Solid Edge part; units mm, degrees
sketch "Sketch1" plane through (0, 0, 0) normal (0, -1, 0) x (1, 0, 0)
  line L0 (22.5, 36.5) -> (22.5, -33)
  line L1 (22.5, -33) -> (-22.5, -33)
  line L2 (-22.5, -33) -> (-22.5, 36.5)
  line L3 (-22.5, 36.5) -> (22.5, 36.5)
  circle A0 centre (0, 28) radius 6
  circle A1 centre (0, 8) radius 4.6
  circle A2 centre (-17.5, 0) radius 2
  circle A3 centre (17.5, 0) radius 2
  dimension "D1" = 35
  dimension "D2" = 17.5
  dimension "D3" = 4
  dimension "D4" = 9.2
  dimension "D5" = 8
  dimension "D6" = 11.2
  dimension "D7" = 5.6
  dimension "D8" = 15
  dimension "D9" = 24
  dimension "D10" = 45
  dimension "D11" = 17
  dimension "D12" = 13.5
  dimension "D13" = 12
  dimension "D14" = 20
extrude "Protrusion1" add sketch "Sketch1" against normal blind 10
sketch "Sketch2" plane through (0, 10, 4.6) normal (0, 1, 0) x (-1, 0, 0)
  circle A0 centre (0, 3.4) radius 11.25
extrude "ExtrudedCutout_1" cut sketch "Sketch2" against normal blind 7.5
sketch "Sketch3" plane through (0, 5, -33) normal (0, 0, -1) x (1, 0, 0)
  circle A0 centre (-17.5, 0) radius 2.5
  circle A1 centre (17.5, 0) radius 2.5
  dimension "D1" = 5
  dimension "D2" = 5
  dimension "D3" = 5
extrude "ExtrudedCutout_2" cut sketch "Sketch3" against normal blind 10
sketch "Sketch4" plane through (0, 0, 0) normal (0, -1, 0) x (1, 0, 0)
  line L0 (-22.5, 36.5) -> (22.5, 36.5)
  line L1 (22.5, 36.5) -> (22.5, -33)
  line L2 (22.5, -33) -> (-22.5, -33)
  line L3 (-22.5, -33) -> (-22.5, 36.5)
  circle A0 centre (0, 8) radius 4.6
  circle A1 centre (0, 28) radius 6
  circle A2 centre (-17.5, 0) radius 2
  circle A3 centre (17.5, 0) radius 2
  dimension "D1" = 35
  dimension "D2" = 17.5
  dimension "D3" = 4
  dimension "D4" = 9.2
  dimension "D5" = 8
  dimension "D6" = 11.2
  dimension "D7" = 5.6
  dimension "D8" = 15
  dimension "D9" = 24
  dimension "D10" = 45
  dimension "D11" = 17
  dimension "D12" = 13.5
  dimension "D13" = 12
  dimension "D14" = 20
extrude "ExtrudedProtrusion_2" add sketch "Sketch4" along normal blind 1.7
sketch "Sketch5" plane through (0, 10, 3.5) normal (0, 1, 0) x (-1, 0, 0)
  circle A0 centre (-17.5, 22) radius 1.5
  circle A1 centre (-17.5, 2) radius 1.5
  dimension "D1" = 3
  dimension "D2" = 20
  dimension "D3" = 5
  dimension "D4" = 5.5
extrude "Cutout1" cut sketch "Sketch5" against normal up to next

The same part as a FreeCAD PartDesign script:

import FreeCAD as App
import Part
import Sketcher
Q = App.Units.Quantity


def add_polygon(sketch, points):
    """Adds a closed chain of lines whose ends are joined by coincident constraints."""
    first, n = sketch.GeometryCount, len(points)
    for a, b in zip(points, points[1:] + points[:1]):
        sketch.addGeometry(Part.LineSegment(App.Vector(*a, 0), App.Vector(*b, 0)), False)
    for i in range(n):
        sketch.addConstraint(Sketcher.Constraint("Coincident", first + i, 2, first + (i + 1) % n, 1))

doc = App.newDocument("Part")
body = doc.addObject("PartDesign::Body", "Body")

# Sketch on XZ plane
sketch1 = doc.addObject("Sketcher::SketchObject", "Sketch")
body.addObject(sketch1)
sketch1.AttachmentSupport = (doc.XZ_Plane, [""])
sketch1.MapMode = "FlatFace"
add_polygon(sketch1, [(22.5, -33), (22.5, 36.5), (-22.5, 36.5), (-22.5, -33)])  # lines 0-3
sketch1.addGeometry(Part.Circle(App.Vector(-17.5, 0, 0), App.Vector(0, 0, 1), 2), False)  # 4
sketch1.addGeometry(Part.Circle(App.Vector(17.5, 0, 0), App.Vector(0, 0, 1), 2), False)  # 5
sketch1.addGeometry(Part.Circle(App.Vector(0, 8, 0), App.Vector(0, 0, 1), 4.6), False)  # 6
sketch1.addGeometry(Part.Circle(App.Vector(0, 28, 0), App.Vector(0, 0, 1), 6), False)  # 7
sketch1.addConstraint(Sketcher.Constraint("Vertical", 0))
sketch1.addConstraint(Sketcher.Constraint("Horizontal", 1))
sketch1.addConstraint(Sketcher.Constraint("Vertical", 2))
sketch1.addConstraint(Sketcher.Constraint("Horizontal", 3))
sketch1.addConstraint(Sketcher.Constraint("Equal", 4, 5))
sketch1.addConstraint(Sketcher.Constraint("Symmetric", 4, 3, 5, 3, -1, 1))
sketch1.addConstraint(Sketcher.Constraint("PointOnObject", 4, 3, -1))
sketch1.addConstraint(Sketcher.Constraint("PointOnObject", 6, 3, -2))
sketch1.addConstraint(Sketcher.Constraint("PointOnObject", 7, 3, -2))
sketch1.addConstraint(Sketcher.Constraint("Diameter", 4, Q("4 mm")))
sketch1.addConstraint(Sketcher.Constraint("Diameter", 7, Q("12 mm")))
sketch1.addConstraint(Sketcher.Constraint("Diameter", 6, Q("9.2 mm")))
sketch1.addConstraint(Sketcher.Constraint("DistanceX", 1, 2, 1, 1, Q("45 mm")))
sketch1.addConstraint(Sketcher.Constraint("DistanceY", 0, 1, 0, 2, Q("69.5 mm")))
sketch1.addConstraint(Sketcher.Constraint("DistanceY", -1, 1, 6, 3, Q("8 mm")))
sketch1.addConstraint(Sketcher.Constraint("DistanceY", -1, 1, 7, 3, Q("28 mm")))
sketch1.addConstraint(Sketcher.Constraint("DistanceY", 2, 2, -1, 1, Q("33 mm")))
sketch1.addConstraint(Sketcher.Constraint("DistanceX", 4, 3, 5, 3, Q("35 mm")))
sketch1.addConstraint(Sketcher.Constraint("DistanceX", 5, 3, 0, 2, Q("5 mm")))
pad1 = doc.addObject("PartDesign::Pad", "Pad")
body.addObject(pad1)
pad1.Profile = sketch1
pad1.Length = 10
pad1.Reversed = True

# Sketch on XZ plane
sketch2 = doc.addObject("Sketcher::SketchObject", "Sketch001")
body.addObject(sketch2)
sketch2.AttachmentSupport = (doc.XZ_Plane, [""])
sketch2.MapMode = "FlatFace"
sketch2.AttachmentOffset = App.Placement(App.Vector(0, 0, -10), App.Rotation())
sketch2.addGeometry(Part.Circle(App.Vector(0, 8, 0), App.Vector(0, 0, 1), 11), False)
sketch2.addConstraint(Sketcher.Constraint("PointOnObject", 0, 3, -2))
sketch2.addConstraint(Sketcher.Constraint("Diameter", 0, Q("22.5 mm")))
sketch2.addConstraint(Sketcher.Constraint("DistanceY", -1, 1, 0, 3, Q("8 mm")))
pocket1 = doc.addObject("PartDesign::Pocket", "Pocket")
body.addObject(pocket1)
pocket1.Profile = sketch2
pocket1.Length = 7.5
pocket1.Reversed = True

# Sketch on XY plane
sketch3 = doc.addObject("Sketcher::SketchObject", "Sketch002")
body.addObject(sketch3)
sketch3.AttachmentSupport = (doc.XY_Plane, [""])
sketch3.MapMode = "FlatFace"
sketch3.AttachmentOffset = App.Placement(App.Vector(0, 0, -33), App.Rotation())
sketch3.addGeometry(Part.Circle(App.Vector(-17.5, 5, 0), App.Vector(0, 0, 1), 2.5), False)
sketch3.addGeometry(Part.Circle(App.Vector(17.5, 5, 0), App.Vector(0, 0, 1), 2.5), False)
sketch3.addConstraint(Sketcher.Constraint("Equal", 0, 1))
sketch3.addConstraint(Sketcher.Constraint("Symmetric", 0, 3, 1, 3, -2))
sketch3.addConstraint(Sketcher.Constraint("Diameter", 0, Q("5 mm")))
sketch3.addConstraint(Sketcher.Constraint("DistanceY", -1, 1, 0, 3, Q("5 mm")))
sketch3.addConstraint(Sketcher.Constraint("DistanceX", 0, 3, 1, 3, Q("35 mm")))
pocket2 = doc.addObject("PartDesign::Pocket", "Pocket001")
body.addObject(pocket2)
pocket2.Profile = sketch3
pocket2.Length = 10
pocket2.Reversed = True

# Sketch on XZ plane
sketch4 = doc.addObject("Sketcher::SketchObject", "Sketch003")
body.addObject(sketch4)
sketch4.AttachmentSupport = (doc.XZ_Plane, [""])
sketch4.MapMode = "FlatFace"
add_polygon(sketch4, [(22.5, 36.5), (-22.5, 36.5), (-22.5, -33), (22.5, -33)])  # lines 0-3
sketch4.addGeometry(Part.Circle(App.Vector(-17.5, 0, 0), App.Vector(0, 0, 1), 2), False)  # 4
sketch4.addGeometry(Part.Circle(App.Vector(17.5, 0, 0), App.Vector(0, 0, 1), 2), False)  # 5
sketch4.addGeometry(Part.Circle(App.Vector(0, 8, 0), App.Vector(0, 0, 1), 4.6), False)  # 6
sketch4.addGeometry(Part.Circle(App.Vector(0, 28, 0), App.Vector(0, 0, 1), 6), False)  # 7
sketch4.addConstraint(Sketcher.Constraint("Horizontal", 0))
sketch4.addConstraint(Sketcher.Constraint("Vertical", 1))
sketch4.addConstraint(Sketcher.Constraint("Horizontal", 2))
sketch4.addConstraint(Sketcher.Constraint("Vertical", 3))
sketch4.addConstraint(Sketcher.Constraint("Equal", 4, 5))
sketch4.addConstraint(Sketcher.Constraint("Symmetric", 4, 3, 5, 3, -1, 1))
sketch4.addConstraint(Sketcher.Constraint("PointOnObject", 4, 3, -1))
sketch4.addConstraint(Sketcher.Constraint("PointOnObject", 6, 3, -2))
sketch4.addConstraint(Sketcher.Constraint("PointOnObject", 7, 3, -2))
sketch4.addConstraint(Sketcher.Constraint("Diameter", 4, Q("4 mm")))
sketch4.addConstraint(Sketcher.Constraint("Diameter", 7, Q("12 mm")))
sketch4.addConstraint(Sketcher.Constraint("Diameter", 6, Q("9.2 mm")))
sketch4.addConstraint(Sketcher.Constraint("DistanceX", 0, 2, 0, 1, Q("45 mm")))
sketch4.addConstraint(Sketcher.Constraint("DistanceY", 1, 2, 1, 1, Q("69.5 mm")))
sketch4.addConstraint(Sketcher.Constraint("DistanceY", -1, 1, 6, 3, Q("8 mm")))
sketch4.addConstraint(Sketcher.Constraint("DistanceY", -1, 1, 7, 3, Q("28 mm")))
sketch4.addConstraint(Sketcher.Constraint("DistanceY", 1, 2, -1, 1, Q("33 mm")))
sketch4.addConstraint(Sketcher.Constraint("DistanceX", 4, 3, 5, 3, Q("35 mm")))
sketch4.addConstraint(Sketcher.Constraint("DistanceX", 0, 2, 4, 3, Q("5 mm")))
pad2 = doc.addObject("PartDesign::Pad", "Pad001")
body.addObject(pad2)
pad2.Profile = sketch4
pad2.Length = 1.7

# Sketch on XZ plane
sketch5 = doc.addObject("Sketcher::SketchObject", "Sketch004")
body.addObject(sketch5)
sketch5.AttachmentSupport = (doc.XZ_Plane, [""])
sketch5.MapMode = "FlatFace"
sketch5.AttachmentOffset = App.Placement(App.Vector(0, 0, -10), App.Rotation())
sketch5.addGeometry(Part.Circle(App.Vector(17.5, 25.5, 0), App.Vector(0, 0, 1), 1.5), False)
sketch5.addGeometry(Part.Circle(App.Vector(17.5, 5.5, 0), App.Vector(0, 0, 1), 1.5), False)
sketch5.addConstraint(Sketcher.Constraint("Equal", 0, 1))
sketch5.addConstraint(Sketcher.Constraint("Vertical", 0, 3, 1, 3))
sketch5.addConstraint(Sketcher.Constraint("Diameter", 0, Q("3 mm")))
sketch5.addConstraint(Sketcher.Constraint("DistanceY", 1, 3, 0, 3, Q("20 mm")))
sketch5.addConstraint(Sketcher.Constraint("DistanceX", -1, 1, 0, 3, Q("17.5 mm")))
sketch5.addConstraint(Sketcher.Constraint("DistanceY", -1, 1, 0, 3, Q("25.5 mm")))
pocket3 = doc.addObject("PartDesign::Pocket", "Pocket002")
body.addObject(pocket3)
pocket3.Profile = sketch5
pocket3.Type = "UpToFirst"
pocket3.Reversed = True

doc.recompute()
